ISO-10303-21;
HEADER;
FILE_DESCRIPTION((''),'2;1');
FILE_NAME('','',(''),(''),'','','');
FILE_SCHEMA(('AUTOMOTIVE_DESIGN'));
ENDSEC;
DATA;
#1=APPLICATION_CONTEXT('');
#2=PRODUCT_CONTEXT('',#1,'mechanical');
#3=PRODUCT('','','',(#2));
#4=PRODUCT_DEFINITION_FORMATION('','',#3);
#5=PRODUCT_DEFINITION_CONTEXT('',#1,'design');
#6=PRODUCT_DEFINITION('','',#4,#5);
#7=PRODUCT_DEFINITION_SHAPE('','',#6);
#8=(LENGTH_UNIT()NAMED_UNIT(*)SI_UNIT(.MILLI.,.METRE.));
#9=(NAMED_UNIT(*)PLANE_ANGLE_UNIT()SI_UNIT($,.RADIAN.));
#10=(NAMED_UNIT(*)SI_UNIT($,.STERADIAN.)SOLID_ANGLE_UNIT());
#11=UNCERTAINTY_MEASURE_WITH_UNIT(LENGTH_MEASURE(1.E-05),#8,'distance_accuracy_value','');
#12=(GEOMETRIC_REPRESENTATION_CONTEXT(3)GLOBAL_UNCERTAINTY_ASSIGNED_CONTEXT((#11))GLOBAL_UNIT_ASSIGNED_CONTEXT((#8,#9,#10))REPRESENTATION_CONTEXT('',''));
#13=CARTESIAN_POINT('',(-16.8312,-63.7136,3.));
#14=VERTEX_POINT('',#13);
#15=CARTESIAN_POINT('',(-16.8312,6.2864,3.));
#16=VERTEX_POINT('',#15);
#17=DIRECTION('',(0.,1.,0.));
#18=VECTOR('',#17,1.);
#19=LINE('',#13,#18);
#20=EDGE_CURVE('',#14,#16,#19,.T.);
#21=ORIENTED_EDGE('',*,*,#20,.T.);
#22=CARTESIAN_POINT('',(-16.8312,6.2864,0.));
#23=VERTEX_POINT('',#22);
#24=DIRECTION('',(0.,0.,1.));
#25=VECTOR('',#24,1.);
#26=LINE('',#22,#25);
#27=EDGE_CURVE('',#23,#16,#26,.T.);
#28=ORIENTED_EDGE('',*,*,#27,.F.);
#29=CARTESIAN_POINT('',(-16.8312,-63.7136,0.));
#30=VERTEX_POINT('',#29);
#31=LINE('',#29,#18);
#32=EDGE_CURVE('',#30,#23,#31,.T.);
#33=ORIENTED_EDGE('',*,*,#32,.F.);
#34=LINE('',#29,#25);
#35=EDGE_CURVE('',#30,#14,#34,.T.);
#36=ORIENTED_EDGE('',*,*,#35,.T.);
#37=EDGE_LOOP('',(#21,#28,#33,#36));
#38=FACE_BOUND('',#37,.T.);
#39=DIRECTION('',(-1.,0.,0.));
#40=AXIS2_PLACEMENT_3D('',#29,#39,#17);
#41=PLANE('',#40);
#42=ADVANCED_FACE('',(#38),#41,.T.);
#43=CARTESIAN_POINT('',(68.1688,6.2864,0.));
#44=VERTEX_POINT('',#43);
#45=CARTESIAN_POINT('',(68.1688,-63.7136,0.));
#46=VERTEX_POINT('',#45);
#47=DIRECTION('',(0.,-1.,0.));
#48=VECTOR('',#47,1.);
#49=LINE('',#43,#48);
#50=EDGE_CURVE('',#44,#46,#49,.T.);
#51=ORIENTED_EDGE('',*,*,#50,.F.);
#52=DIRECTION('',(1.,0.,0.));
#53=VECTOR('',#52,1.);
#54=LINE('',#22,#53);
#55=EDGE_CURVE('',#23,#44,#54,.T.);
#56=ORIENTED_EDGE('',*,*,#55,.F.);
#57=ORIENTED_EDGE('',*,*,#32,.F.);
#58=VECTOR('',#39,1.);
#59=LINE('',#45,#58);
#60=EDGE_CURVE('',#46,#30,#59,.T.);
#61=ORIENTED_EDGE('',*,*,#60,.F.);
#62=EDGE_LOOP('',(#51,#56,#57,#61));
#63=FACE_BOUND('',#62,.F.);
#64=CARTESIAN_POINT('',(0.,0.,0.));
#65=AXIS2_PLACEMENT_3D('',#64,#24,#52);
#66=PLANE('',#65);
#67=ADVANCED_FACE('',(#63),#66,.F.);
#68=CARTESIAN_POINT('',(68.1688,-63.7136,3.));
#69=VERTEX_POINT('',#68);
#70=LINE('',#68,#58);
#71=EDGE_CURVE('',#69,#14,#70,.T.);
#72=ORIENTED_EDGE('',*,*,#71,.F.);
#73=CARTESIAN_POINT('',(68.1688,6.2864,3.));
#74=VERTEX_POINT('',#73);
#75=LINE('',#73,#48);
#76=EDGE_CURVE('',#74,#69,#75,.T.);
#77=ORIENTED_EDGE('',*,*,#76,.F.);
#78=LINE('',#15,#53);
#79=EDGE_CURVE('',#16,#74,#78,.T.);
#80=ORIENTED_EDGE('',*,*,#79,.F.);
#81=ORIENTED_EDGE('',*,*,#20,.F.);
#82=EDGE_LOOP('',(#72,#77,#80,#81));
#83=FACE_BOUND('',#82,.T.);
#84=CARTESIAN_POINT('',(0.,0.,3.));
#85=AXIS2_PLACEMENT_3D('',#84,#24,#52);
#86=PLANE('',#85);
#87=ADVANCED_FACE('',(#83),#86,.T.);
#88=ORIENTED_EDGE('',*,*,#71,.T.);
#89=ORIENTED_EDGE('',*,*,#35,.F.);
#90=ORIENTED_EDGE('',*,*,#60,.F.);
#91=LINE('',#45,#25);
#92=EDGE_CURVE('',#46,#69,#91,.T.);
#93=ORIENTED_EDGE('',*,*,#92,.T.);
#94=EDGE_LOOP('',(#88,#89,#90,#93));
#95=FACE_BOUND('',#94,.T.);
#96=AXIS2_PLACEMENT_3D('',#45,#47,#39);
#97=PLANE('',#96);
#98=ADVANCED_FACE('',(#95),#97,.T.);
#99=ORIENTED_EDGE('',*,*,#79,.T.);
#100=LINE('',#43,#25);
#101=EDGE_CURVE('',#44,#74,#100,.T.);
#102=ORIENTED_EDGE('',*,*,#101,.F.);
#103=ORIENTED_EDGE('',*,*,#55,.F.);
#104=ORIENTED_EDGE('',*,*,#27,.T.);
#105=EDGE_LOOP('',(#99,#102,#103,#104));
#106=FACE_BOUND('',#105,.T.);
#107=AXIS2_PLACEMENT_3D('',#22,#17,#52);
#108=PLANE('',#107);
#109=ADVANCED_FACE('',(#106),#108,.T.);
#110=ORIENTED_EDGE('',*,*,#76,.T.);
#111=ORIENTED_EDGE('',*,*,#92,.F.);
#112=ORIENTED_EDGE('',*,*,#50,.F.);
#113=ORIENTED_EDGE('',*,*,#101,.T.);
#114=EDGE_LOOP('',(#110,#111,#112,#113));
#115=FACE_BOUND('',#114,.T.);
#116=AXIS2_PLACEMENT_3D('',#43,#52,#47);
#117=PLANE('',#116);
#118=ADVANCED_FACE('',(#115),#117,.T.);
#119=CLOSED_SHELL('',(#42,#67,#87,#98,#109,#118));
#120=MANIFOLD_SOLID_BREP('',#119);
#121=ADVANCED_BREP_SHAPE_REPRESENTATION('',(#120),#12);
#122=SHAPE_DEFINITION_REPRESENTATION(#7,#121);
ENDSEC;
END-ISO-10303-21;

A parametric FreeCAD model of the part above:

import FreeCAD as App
import Part
import Sketcher

V = App.Vector
Q = App.Units.Quantity

doc = App.newDocument("Part")
body = doc.addObject("PartDesign::Body", "Body")

# Sketch on XY plane
sketch1 = body.newObject("Sketcher::SketchObject", "Sketch")
sketch1.AttachmentSupport = (doc.getObject("XY_Plane"), [""])
sketch1.MapMode = "FlatFace"
sketch1.addGeometry([
    Part.LineSegment(V(68, 6, 0), V(-17, 6, 0)),
    Part.LineSegment(V(-17, 6, 0), V(-17, -64, 0)),
    Part.LineSegment(V(-17, -64, 0), V(68, -64, 0)),
    Part.LineSegment(V(68, -64, 0), V(68, 6, 0)),
], False)
sketch1.addConstraint([
    Sketcher.Constraint("Coincident", 0, 2, 1, 1),
    Sketcher.Constraint("Coincident", 1, 2, 2, 1),
    Sketcher.Constraint("Coincident", 2, 2, 3, 1),
    Sketcher.Constraint("Coincident", 3, 2, 0, 1),
    Sketcher.Constraint("Horizontal", 0),
    Sketcher.Constraint("Vertical", 1),
    Sketcher.Constraint("Horizontal", 2),
    Sketcher.Constraint("Vertical", 3),
    Sketcher.Constraint("DistanceX", 0, 2, 0, 1, Q("85 mm")),
    Sketcher.Constraint("DistanceY", 1, 2, 1, 1, Q("70 mm")),
    Sketcher.Constraint("DistanceX", 0, 2, -1, 1, Q("16.8312 mm")),
    Sketcher.Constraint("DistanceY", -1, 1, 0, 2, Q("6.2864 mm")),
])
pad1 = body.newObject("PartDesign::Pad", "Pad")
pad1.Profile = sketch1
pad1.Length = 3

doc.recompute()
